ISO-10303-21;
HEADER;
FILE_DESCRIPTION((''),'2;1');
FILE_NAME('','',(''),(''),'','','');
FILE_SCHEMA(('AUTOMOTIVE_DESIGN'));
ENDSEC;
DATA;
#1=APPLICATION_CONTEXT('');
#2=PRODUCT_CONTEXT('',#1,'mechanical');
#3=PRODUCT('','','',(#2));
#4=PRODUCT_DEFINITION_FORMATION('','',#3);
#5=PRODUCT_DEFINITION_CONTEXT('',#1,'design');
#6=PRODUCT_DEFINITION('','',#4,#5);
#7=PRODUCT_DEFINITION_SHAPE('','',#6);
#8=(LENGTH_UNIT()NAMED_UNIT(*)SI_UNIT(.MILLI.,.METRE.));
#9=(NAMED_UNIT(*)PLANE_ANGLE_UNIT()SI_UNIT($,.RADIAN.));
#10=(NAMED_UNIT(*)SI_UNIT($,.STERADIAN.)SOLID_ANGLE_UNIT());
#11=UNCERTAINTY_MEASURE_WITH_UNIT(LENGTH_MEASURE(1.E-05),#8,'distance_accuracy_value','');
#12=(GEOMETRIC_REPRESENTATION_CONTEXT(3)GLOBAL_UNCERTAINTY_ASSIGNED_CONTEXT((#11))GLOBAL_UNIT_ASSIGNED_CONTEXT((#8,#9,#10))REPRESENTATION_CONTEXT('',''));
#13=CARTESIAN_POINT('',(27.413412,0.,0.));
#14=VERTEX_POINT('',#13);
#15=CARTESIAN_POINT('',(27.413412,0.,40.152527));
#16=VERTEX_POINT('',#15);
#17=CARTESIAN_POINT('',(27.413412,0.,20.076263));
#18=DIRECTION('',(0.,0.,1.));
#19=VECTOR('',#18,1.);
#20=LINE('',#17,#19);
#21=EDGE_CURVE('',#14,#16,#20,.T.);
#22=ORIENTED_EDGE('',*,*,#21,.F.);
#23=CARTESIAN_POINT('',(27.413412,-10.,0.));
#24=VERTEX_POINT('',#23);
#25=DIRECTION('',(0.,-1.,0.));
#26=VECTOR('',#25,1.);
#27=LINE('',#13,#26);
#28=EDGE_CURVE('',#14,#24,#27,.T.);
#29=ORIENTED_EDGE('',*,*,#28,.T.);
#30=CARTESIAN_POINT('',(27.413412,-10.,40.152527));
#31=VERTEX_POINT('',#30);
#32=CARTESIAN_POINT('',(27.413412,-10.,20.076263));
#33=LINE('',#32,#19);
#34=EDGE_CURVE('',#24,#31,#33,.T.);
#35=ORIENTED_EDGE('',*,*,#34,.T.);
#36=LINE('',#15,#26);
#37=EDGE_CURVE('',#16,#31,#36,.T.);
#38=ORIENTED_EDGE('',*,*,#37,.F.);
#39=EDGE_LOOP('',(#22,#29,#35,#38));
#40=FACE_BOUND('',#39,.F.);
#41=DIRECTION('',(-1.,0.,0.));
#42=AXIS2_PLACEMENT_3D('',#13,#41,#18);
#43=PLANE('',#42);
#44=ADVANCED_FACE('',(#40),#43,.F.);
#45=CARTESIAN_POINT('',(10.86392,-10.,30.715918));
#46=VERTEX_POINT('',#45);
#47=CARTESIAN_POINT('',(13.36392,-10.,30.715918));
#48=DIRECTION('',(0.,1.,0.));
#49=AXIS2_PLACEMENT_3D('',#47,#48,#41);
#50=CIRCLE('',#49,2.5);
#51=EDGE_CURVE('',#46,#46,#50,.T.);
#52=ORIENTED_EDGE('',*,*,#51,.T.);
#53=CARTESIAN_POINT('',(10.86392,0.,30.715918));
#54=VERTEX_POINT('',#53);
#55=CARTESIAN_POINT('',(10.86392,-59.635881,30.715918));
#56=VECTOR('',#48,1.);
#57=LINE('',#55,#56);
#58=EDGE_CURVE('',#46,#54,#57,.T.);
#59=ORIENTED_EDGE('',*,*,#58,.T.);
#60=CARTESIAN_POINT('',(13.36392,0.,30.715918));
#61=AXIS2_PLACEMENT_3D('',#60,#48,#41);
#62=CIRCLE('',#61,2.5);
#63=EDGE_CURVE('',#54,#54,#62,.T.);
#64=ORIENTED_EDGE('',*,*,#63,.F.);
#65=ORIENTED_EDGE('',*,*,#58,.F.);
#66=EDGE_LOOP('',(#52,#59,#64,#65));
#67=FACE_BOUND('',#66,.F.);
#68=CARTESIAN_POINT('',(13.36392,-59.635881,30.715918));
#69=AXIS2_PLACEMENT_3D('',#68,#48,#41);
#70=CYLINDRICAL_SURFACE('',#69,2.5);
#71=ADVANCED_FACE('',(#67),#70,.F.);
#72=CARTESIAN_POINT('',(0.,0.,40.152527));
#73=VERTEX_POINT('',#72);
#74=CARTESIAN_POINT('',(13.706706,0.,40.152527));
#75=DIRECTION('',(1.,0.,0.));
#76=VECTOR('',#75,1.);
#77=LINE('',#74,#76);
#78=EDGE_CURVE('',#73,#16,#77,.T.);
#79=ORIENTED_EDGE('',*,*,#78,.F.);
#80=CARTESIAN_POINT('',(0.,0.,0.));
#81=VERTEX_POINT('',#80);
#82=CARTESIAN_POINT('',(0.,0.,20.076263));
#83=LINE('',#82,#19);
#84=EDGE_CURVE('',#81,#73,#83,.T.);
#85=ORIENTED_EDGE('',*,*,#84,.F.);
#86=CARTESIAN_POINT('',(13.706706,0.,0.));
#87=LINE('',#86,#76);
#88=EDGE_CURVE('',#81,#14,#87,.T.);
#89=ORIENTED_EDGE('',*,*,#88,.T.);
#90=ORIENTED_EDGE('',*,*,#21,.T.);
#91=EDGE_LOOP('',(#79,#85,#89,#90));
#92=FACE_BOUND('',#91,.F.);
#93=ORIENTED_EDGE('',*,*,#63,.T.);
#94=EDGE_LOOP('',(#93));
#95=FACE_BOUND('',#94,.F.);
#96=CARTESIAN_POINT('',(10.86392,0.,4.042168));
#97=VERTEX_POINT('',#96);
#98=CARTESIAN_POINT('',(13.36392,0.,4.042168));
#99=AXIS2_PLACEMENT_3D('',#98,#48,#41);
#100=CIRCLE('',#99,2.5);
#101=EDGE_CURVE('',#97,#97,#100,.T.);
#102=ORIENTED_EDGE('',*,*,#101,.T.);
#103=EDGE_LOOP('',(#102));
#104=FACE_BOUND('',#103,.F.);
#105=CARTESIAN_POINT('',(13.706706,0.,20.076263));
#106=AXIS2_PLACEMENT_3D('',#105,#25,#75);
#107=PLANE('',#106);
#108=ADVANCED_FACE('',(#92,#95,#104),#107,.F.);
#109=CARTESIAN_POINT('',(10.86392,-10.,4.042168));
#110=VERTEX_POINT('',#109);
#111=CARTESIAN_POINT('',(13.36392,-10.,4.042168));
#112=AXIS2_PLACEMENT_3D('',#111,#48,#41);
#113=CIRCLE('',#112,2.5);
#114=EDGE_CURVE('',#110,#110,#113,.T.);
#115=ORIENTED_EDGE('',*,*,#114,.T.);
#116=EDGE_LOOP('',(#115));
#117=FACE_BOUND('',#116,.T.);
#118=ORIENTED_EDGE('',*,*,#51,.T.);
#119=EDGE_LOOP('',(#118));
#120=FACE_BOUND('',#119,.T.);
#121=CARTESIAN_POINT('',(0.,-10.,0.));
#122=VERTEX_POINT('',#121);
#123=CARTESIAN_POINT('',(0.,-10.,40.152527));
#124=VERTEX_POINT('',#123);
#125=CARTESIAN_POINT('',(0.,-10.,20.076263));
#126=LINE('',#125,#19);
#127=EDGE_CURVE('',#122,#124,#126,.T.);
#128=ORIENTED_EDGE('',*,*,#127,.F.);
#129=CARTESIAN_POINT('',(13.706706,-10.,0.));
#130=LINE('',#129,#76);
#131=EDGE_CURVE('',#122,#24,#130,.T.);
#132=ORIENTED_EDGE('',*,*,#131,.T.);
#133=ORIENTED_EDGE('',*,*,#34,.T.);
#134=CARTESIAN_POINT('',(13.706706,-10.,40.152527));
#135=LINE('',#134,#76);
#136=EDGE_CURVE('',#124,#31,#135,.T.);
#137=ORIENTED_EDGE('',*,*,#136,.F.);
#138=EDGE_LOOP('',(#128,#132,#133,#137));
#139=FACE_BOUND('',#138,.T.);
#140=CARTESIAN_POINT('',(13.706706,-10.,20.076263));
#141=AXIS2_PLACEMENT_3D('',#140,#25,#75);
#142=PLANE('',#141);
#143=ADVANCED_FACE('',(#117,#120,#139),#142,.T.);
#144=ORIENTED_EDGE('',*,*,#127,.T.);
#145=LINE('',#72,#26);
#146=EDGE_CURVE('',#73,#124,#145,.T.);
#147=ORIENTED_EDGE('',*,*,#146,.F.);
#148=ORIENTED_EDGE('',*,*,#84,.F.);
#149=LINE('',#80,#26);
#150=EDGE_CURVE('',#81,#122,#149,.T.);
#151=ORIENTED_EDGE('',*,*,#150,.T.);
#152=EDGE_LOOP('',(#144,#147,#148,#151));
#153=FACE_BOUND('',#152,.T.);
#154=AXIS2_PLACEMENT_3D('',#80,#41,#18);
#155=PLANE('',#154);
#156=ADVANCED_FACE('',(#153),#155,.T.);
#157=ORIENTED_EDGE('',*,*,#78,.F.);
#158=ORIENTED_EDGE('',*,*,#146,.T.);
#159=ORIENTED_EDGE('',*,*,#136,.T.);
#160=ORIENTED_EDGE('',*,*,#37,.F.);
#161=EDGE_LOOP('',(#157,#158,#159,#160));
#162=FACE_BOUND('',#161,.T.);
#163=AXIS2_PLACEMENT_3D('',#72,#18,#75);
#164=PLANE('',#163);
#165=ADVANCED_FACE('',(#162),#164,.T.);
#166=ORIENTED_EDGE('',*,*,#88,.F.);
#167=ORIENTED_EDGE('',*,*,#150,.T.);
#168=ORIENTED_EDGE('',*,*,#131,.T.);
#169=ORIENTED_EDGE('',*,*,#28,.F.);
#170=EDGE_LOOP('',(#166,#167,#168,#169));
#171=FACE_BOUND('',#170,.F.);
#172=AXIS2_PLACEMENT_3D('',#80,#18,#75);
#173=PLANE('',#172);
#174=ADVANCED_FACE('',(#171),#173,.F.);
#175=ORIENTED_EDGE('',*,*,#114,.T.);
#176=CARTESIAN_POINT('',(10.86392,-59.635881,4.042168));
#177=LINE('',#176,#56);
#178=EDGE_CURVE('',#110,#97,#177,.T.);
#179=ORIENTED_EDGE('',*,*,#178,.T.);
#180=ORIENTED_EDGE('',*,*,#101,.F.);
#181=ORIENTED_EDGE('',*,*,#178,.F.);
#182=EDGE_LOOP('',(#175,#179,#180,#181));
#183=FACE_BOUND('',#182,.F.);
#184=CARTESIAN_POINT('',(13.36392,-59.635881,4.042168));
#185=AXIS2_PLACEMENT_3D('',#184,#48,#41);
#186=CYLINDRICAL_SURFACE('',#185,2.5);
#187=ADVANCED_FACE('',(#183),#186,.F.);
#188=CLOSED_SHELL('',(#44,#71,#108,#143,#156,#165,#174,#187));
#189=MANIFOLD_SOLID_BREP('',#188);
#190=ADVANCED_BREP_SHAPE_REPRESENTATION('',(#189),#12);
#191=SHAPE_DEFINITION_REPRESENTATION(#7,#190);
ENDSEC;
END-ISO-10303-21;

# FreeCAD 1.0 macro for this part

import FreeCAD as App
import Part
import Sketcher
from FreeCAD import Vector

doc = App.newDocument("Part")
body = doc.addObject("PartDesign::Body", "Body")

sketch1 = body.newObject("Sketcher::SketchObject", "Sketch")
sketch1.AttachmentSupport = (doc.getObject("XZ_Plane"), [""])
sketch1.MapMode = "FlatFace"
sketch1.addGeometry([
    Part.LineSegment(Vector(0, 40, 0), Vector(0, 0, 0)),
    Part.LineSegment(Vector(0, 0, 0), Vector(27, 0, 0)),
    Part.LineSegment(Vector(27, 0, 0), Vector(27, 40, 0)),
    Part.LineSegment(Vector(27, 40, 0), Vector(0, 40, 0)),
], False)
sketch1.addConstraint([
    Sketcher.Constraint("Coincident", 0, 2, 1, 1),
    Sketcher.Constraint("Coincident", 1, 2, 2, 1),
    Sketcher.Constraint("Coincident", 2, 2, 3, 1),
    Sketcher.Constraint("Coincident", 3, 2, 0, 1),
    Sketcher.Constraint("Vertical", 0),
    Sketcher.Constraint("Horizontal", 1),
    Sketcher.Constraint("Vertical", 2),
    Sketcher.Constraint("Horizontal", 3),
    Sketcher.Constraint("Coincident", 0, 2, -1, 1),
    Sketcher.Constraint("DistanceX", 1, 1, 1, 2, 27.413413),
    Sketcher.Constraint("DistanceY", 0, 2, 0, 1, 40.152527),
])
pad1 = body.newObject("PartDesign::Pad", "Pad")
pad1.Profile = sketch1
pad1.Length = 10

sketch2 = body.newObject("Sketcher::SketchObject", "Sketch001")
sketch2.AttachmentSupport = (doc.getObject("XZ_Plane"), [""])
sketch2.MapMode = "FlatFace"
sketch2.AttachmentOffset = App.Placement(Vector(0, 0, 10), App.Rotation())
sketch2.addGeometry([
    Part.Circle(Vector(13.4, 4, 0), Vector(0, 0, 1), 2.5),
    Part.Circle(Vector(13.4, 30.7, 0), Vector(0, 0, 1), 2.5),
], False)
sketch2.addConstraint([
    Sketcher.Constraint("Equal", 0, 1),
    Sketcher.Constraint("Vertical", 0, 3, 1, 3),
    Sketcher.Constraint("Diameter", 0, 5.0),
    Sketcher.Constraint("DistanceX", -1, 1, 0, 3, 13.36392),
    Sketcher.Constraint("DistanceY", -1, 1, 0, 3, 4.042168),
    Sketcher.Constraint("DistanceY", 0, 3, 1, 3, 26.67375),
])
doc.recompute()
hole = body.newObject("PartDesign::Hole", "Hole")
hole.Profile = sketch2
hole.ThreadType = "None"
hole.Diameter = 5
hole.DepthType = "ThroughAll"

doc.recompute()
